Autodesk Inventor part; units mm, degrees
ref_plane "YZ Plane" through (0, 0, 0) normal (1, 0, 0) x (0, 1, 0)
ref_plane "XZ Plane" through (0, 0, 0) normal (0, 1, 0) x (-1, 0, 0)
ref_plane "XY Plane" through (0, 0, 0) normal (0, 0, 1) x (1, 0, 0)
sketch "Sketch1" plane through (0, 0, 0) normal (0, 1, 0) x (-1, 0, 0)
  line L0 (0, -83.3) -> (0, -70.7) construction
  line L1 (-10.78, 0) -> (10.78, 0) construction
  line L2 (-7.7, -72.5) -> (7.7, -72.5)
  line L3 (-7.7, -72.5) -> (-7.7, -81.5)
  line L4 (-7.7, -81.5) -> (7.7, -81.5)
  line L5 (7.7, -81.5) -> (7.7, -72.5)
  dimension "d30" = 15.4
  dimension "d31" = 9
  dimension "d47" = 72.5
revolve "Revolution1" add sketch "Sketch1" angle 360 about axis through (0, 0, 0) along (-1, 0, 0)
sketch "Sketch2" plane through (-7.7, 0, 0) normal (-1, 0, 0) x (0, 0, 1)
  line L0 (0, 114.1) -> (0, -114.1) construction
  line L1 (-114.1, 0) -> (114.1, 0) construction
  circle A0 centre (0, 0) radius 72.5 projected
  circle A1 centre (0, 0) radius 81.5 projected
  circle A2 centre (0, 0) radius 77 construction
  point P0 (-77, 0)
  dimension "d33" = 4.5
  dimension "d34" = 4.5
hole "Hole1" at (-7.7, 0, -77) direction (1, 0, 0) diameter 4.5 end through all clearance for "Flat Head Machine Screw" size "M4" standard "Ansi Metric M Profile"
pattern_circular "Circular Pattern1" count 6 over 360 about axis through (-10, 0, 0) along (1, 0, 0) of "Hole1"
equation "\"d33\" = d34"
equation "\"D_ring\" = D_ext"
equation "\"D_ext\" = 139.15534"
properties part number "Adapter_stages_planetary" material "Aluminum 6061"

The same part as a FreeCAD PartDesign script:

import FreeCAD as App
import Part
import Sketcher

V = App.Vector

doc = App.newDocument("Part")
params = doc.addObject("Spreadsheet::Sheet", "Params")
for row, (alias, value) in enumerate([
    ("sketch1_height", "9 mm"),
    ("sketch1_width", "15.4 mm"),
    ("revolution_angle", "360 deg"),
    ("sketch2_diameter", "4.5 mm"),
    ("hole_diameter", "4.5 mm"),
], start=1):
    params.set(f"A{row}", alias)
    params.set(f"B{row}", "=" + value)
    params.setAlias(f"B{row}", alias)

body = doc.addObject("PartDesign::Body", "Body")

# Sketch on XZ plane
sketch1 = body.newObject("Sketcher::SketchObject", "Sketch")
sketch1.AttachmentSupport = (doc.getObject("XZ_Plane"), [""])
sketch1.MapMode = "FlatFace"
sketch1.addGeometry(Part.LineSegment(V(-8, -72, 0), V(8, -72, 0)), False)
sketch1.addGeometry(Part.LineSegment(V(8, -72, 0), V(8, -82, 0)), False)
sketch1.addGeometry(Part.LineSegment(V(8, -82, 0), V(-8, -82, 0)), False)
sketch1.addGeometry(Part.LineSegment(V(-8, -82, 0), V(-8, -72, 0)), False)
sketch1.addConstraint(Sketcher.Constraint("Coincident", 0, 2, 1, 1))
sketch1.addConstraint(Sketcher.Constraint("Coincident", 1, 2, 2, 1))
sketch1.addConstraint(Sketcher.Constraint("Coincident", 2, 2, 3, 1))
sketch1.addConstraint(Sketcher.Constraint("Coincident", 3, 2, 0, 1))
sketch1.addConstraint(Sketcher.Constraint("Horizontal", 0))
sketch1.addConstraint(Sketcher.Constraint("Vertical", 1))
sketch1.addConstraint(Sketcher.Constraint("Horizontal", 2))
sketch1.addConstraint(Sketcher.Constraint("Vertical", 3))
sketch1.addConstraint(Sketcher.Constraint("DistanceY", 1, 2, 1, 1, 9.0))
sketch1.addConstraint(Sketcher.Constraint("DistanceX", 0, 1, 0, 2, 15.4))
sketch1.addConstraint(Sketcher.Constraint("DistanceY", 0, 2, -1, 1, 72.5))
sketch1.addConstraint(Sketcher.Constraint("DistanceX", -1, 1, 0, 2, 7.7))
sketch1.setExpression("Constraints[8]", "Params.sketch1_height")
sketch1.setExpression("Constraints[9]", "Params.sketch1_width")
revolution = body.newObject("PartDesign::Revolution", "Revolution")
revolution.Profile = sketch1
revolution.ReferenceAxis = (sketch1, ["H_Axis"])
revolution.setExpression("Angle", "Params.revolution_angle")

# Sketch on YZ plane
sketch2 = body.newObject("Sketcher::SketchObject", "Sketch001")
sketch2.AttachmentSupport = (doc.getObject("YZ_Plane"), [""])
sketch2.MapMode = "FlatFace"
sketch2.AttachmentOffset = App.Placement(V(0, 0, -7.7), App.Rotation())
sketch2.addGeometry(Part.Circle(V(0, -77, 0), V(0, 0, 1), 2.2), False)
sketch2.addConstraint(Sketcher.Constraint("PointOnObject", 0, 3, -2))
sketch2.addConstraint(Sketcher.Constraint("Diameter", 0, 4.5))
sketch2.addConstraint(Sketcher.Constraint("DistanceY", 0, 3, -1, 1, 77.0))
sketch2.setExpression("Constraints[1]", "Params.sketch2_diameter")
doc.recompute()
hole = body.newObject("PartDesign::Hole", "Hole")
hole.Profile = sketch2
hole.ThreadType = "None"
hole.setExpression("Diameter", "Params.hole_diameter")
hole.DepthType = "ThroughAll"
hole.Reversed = True
doc.recompute()

polarpattern = body.newObject("PartDesign::PolarPattern", "PolarPattern")
polarpattern.Originals = [hole]
polarpattern.Axis = (doc.getObject("X_Axis"), [""])
polarpattern.Angle = 360
polarpattern.Occurrences = 6
body.Tip = polarpattern

doc.recompute()
